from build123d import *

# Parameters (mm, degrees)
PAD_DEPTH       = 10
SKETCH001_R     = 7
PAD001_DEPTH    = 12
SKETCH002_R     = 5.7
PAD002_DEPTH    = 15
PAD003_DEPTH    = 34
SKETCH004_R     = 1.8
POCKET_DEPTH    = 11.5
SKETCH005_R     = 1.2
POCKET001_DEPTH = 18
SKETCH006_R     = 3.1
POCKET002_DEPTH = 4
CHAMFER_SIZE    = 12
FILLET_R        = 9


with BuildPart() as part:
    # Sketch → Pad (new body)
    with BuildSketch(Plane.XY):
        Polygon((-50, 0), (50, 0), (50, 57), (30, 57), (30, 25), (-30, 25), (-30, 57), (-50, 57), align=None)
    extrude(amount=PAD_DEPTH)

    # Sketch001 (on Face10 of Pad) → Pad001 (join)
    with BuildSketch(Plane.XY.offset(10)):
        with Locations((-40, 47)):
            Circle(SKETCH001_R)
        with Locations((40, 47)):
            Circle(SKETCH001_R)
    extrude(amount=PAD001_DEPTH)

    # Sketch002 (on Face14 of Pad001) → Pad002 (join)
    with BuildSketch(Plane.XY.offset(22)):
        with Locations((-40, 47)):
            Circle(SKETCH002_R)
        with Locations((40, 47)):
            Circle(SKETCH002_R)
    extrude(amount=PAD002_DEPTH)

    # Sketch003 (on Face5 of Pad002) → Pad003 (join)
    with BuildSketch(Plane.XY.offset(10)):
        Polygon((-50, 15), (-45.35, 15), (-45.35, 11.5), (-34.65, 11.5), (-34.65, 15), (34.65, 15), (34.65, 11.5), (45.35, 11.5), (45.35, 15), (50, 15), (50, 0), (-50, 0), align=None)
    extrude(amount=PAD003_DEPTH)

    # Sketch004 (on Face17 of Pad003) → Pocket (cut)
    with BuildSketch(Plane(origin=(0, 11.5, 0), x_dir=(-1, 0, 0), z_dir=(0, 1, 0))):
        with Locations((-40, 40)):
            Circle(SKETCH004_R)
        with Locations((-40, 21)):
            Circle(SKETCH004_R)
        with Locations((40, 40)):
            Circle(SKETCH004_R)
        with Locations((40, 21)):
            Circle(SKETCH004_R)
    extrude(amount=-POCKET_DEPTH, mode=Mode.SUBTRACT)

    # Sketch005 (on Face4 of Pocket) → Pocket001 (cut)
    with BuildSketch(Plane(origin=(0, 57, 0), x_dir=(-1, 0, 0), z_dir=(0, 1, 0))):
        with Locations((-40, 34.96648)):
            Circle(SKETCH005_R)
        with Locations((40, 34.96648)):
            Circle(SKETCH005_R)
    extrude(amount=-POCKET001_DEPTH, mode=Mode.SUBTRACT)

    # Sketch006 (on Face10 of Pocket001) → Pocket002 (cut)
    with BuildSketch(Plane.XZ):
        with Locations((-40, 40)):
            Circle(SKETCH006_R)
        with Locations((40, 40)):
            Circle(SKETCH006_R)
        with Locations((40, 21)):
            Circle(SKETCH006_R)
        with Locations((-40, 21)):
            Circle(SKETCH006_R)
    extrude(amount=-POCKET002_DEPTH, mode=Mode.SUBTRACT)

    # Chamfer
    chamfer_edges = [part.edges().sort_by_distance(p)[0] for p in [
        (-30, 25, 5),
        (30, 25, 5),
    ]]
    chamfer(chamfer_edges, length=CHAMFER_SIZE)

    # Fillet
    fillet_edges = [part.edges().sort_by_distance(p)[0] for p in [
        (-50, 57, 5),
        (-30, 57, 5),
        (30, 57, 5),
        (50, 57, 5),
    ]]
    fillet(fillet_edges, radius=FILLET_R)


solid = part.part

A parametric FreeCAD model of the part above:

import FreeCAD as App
import Part
import Sketcher
from FreeCAD import Vector


def edges_at(feature, points):
    """Names of the edges that pass closest to the given points."""
    edges = feature.Shape.Edges
    near = lambda p: min(range(len(edges)), key=lambda i: edges[i].distToShape(Part.Vertex(*p))[0])
    return sorted({f"Edge{near(p) + 1}" for p in points})


def add_polygon(sketch, points):
    """Adds a closed chain of lines whose ends are joined by coincident constraints."""
    first, n = sketch.GeometryCount, len(points)
    for a, b in zip(points, points[1:] + points[:1]):
        sketch.addGeometry(Part.LineSegment(App.Vector(*a, 0), App.Vector(*b, 0)), False)
    for i in range(n):
        sketch.addConstraint(Sketcher.Constraint("Coincident", first + i, 2, first + (i + 1) % n, 1))

doc = App.newDocument("Part")
body = doc.addObject("PartDesign::Body", "Body")

# Sketch on XY plane
sketch1 = body.newObject("Sketcher::SketchObject", "Sketch")
sketch1.AttachmentSupport = (doc.getObject("XY_Plane"), [""])
sketch1.MapMode = "FlatFace"
add_polygon(sketch1, [(-50, 0), (50, 0), (50, 57), (30, 57), (30, 25), (-30, 25), (-30, 57), (-50, 57)])  # lines 0-7
sketch1.addConstraint(Sketcher.Constraint("Horizontal", 0))
sketch1.addConstraint(Sketcher.Constraint("Vertical", 1))
sketch1.addConstraint(Sketcher.Constraint("Horizontal", 2))
sketch1.addConstraint(Sketcher.Constraint("Vertical", 3))
sketch1.addConstraint(Sketcher.Constraint("Horizontal", 4))
sketch1.addConstraint(Sketcher.Constraint("Vertical", 5))
sketch1.addConstraint(Sketcher.Constraint("Horizontal", 6))
sketch1.addConstraint(Sketcher.Constraint("Vertical", 7))
sketch1.addConstraint(Sketcher.Constraint("Symmetric", 0, 2, 7, 2, -1, 1))
sketch1.addConstraint(Sketcher.Constraint("Symmetric", 2, 2, 5, 2, -2))
sketch1.addConstraint(Sketcher.Constraint("DistanceX", 0, 1, 0, 2, 100.0))
sketch1.addConstraint(Sketcher.Constraint("DistanceX", 2, 2, 2, 1, 20.0))
sketch1.addConstraint(Sketcher.Constraint("DistanceY", 1, 1, 1, 2, 57.0))
sketch1.addConstraint(Sketcher.Constraint("DistanceY", 3, 2, 3, 1, 32.0))
pad1 = body.newObject("PartDesign::Pad", "Pad")
pad1.Profile = sketch1
pad1.Length = 10

# Sketch on XY plane
sketch2 = body.newObject("Sketcher::SketchObject", "Sketch001")
sketch2.AttachmentSupport = (doc.getObject("XY_Plane"), [""])
sketch2.MapMode = "FlatFace"
sketch2.AttachmentOffset = App.Placement(Vector(0, 0, 10), App.Rotation())
sketch2.addGeometry(Part.Circle(Vector(-40, 47, 0), Vector(0, 0, 1), 7), False)
sketch2.addGeometry(Part.Circle(Vector(40, 47, 0), Vector(0, 0, 1), 7), False)
sketch2.addConstraint(Sketcher.Constraint("Equal", 0, 1))
sketch2.addConstraint(Sketcher.Constraint("Symmetric", 0, 3, 1, 3, -2))
sketch2.addConstraint(Sketcher.Constraint("Diameter", 0, 14.0))
sketch2.addConstraint(Sketcher.Constraint("DistanceX", 0, 3, -1, 1, 40.0))
sketch2.addConstraint(Sketcher.Constraint("DistanceY", -1, 1, 0, 3, 47.0))
pad2 = body.newObject("PartDesign::Pad", "Pad001")
pad2.Profile = sketch2
pad2.Length = 12

# Sketch on XY plane
sketch3 = body.newObject("Sketcher::SketchObject", "Sketch002")
sketch3.AttachmentSupport = (doc.getObject("XY_Plane"), [""])
sketch3.MapMode = "FlatFace"
sketch3.AttachmentOffset = App.Placement(Vector(0, 0, 22), App.Rotation())
sketch3.addGeometry(Part.Circle(Vector(-40, 47, 0), Vector(0, 0, 1), 5.7), False)
sketch3.addGeometry(Part.Circle(Vector(40, 47, 0), Vector(0, 0, 1), 5.7), False)
sketch3.addConstraint(Sketcher.Constraint("Equal", 0, 1))
sketch3.addConstraint(Sketcher.Constraint("Symmetric", 0, 3, 1, 3, -2))
sketch3.addConstraint(Sketcher.Constraint("Diameter", 0, 11.4))
sketch3.addConstraint(Sketcher.Constraint("DistanceX", 0, 3, -1, 1, 40.0))
sketch3.addConstraint(Sketcher.Constraint("DistanceY", -1, 1, 0, 3, 47.0))
pad3 = body.newObject("PartDesign::Pad", "Pad002")
pad3.Profile = sketch3
pad3.Length = 15

# Sketch on XY plane
sketch4 = body.newObject("Sketcher::SketchObject", "Sketch003")
sketch4.AttachmentSupport = (doc.getObject("XY_Plane"), [""])
sketch4.MapMode = "FlatFace"
sketch4.AttachmentOffset = App.Placement(Vector(0, 0, 10), App.Rotation())
add_polygon(sketch4, [(-45.35, 15), (-50, 15), (-50, 0), (50, 0), (50, 15), (45.35, 15), (45.35, 11.5), (34.65, 11.5), (34.65, 15), (-34.65, 15), (-34.65, 11.5), (-45.35, 11.5)])  # lines 0-11
sketch4.addConstraint(Sketcher.Constraint("Horizontal", 0))
sketch4.addConstraint(Sketcher.Constraint("Vertical", 1))
sketch4.addConstraint(Sketcher.Constraint("Horizontal", 2))
sketch4.addConstraint(Sketcher.Constraint("Vertical", 3))
sketch4.addConstraint(Sketcher.Constraint("Horizontal", 4))
sketch4.addConstraint(Sketcher.Constraint("Vertical", 5))
sketch4.addConstraint(Sketcher.Constraint("Horizontal", 6))
sketch4.addConstraint(Sketcher.Constraint("Vertical", 7))
sketch4.addConstraint(Sketcher.Constraint("Horizontal", 8))
sketch4.addConstraint(Sketcher.Constraint("Vertical", 9))
sketch4.addConstraint(Sketcher.Constraint("Horizontal", 10))
sketch4.addConstraint(Sketcher.Constraint("Vertical", 11))
sketch4.addConstraint(Sketcher.Constraint("Symmetric", 1, 2, 2, 2, -1, 1))
sketch4.addConstraint(Sketcher.Constraint("Symmetric", 6, 2, 9, 2, -2))
sketch4.addConstraint(Sketcher.Constraint("Symmetric", 4, 2, 11, 2, -2))
sketch4.addConstraint(Sketcher.Constraint("Horizontal", 4, 2, 7, 2))
sketch4.addConstraint(Sketcher.Constraint("DistanceX", 2, 1, 2, 2, 100.0))
sketch4.addConstraint(Sketcher.Constraint("DistanceY", 1, 2, 1, 1, 15.0))
sketch4.addConstraint(Sketcher.Constraint("DistanceX", 6, 2, 6, 1, 10.7))
sketch4.addConstraint(Sketcher.Constraint("DistanceX", 8, 2, 8, 1, 69.3))
sketch4.addConstraint(Sketcher.Constraint("DistanceY", 5, 2, 5, 1, 3.5))
pad4 = body.newObject("PartDesign::Pad", "Pad003")
pad4.Profile = sketch4
pad4.Length = 34

# Sketch on XZ plane
sketch5 = body.newObject("Sketcher::SketchObject", "Sketch004")
sketch5.AttachmentSupport = (doc.getObject("XZ_Plane"), [""])
sketch5.MapMode = "FlatFace"
sketch5.AttachmentOffset = App.Placement(Vector(0, 0, -11.5), App.Rotation())
sketch5.addGeometry(Part.Circle(Vector(40, 40, 0), Vector(0, 0, 1), 1.8), False)
sketch5.addGeometry(Part.Circle(Vector(40, 21, 0), Vector(0, 0, 1), 1.8), False)
sketch5.addGeometry(Part.Circle(Vector(-40, 40, 0), Vector(0, 0, 1), 1.8), False)
sketch5.addGeometry(Part.Circle(Vector(-40, 21, 0), Vector(0, 0, 1), 1.8), False)
sketch5.addConstraint(Sketcher.Constraint("Equal", 0, 1))
sketch5.addConstraint(Sketcher.Constraint("Equal", 1, 2))
sketch5.addConstraint(Sketcher.Constraint("Equal", 2, 3))
sketch5.addConstraint(Sketcher.Constraint("Symmetric", 0, 3, 2, 3, -2))
sketch5.addConstraint(Sketcher.Constraint("Symmetric", 1, 3, 3, 3, -2))
sketch5.addConstraint(Sketcher.Constraint("Vertical", 0, 3, 1, 3))
sketch5.addConstraint(Sketcher.Constraint("Diameter", 0, 3.6))
sketch5.addConstraint(Sketcher.Constraint("DistanceX", -1, 1, 0, 3, 40.0))
sketch5.addConstraint(Sketcher.Constraint("DistanceY", -1, 1, 0, 3, 40.0))
sketch5.addConstraint(Sketcher.Constraint("DistanceY", -1, 1, 1, 3, 21.0))
pocket1 = body.newObject("PartDesign::Pocket", "Pocket")
pocket1.Profile = sketch5
pocket1.Length = 11.5
pocket1.Reversed = True

# Sketch on XZ plane
sketch6 = body.newObject("Sketcher::SketchObject", "Sketch005")
sketch6.AttachmentSupport = (doc.getObject("XZ_Plane"), [""])
sketch6.MapMode = "FlatFace"
sketch6.AttachmentOffset = App.Placement(Vector(0, 0, -57), App.Rotation())
sketch6.addGeometry(Part.Circle(Vector(40, 34.96648, 0), Vector(0, 0, 1), 1.2), False)
sketch6.addGeometry(Part.Circle(Vector(-40, 34.96648, 0), Vector(0, 0, 1), 1.2), False)
sketch6.addConstraint(Sketcher.Constraint("Equal", 0, 1))
sketch6.addConstraint(Sketcher.Constraint("Symmetric", 0, 3, 1, 3, -2))
sketch6.addConstraint(Sketcher.Constraint("Diameter", 0, 2.4))
sketch6.addConstraint(Sketcher.Constraint("DistanceX", -1, 1, 0, 3, 40.0))
sketch6.addConstraint(Sketcher.Constraint("DistanceY", -1, 1, 0, 3, 34.96648))
pocket2 = body.newObject("PartDesign::Pocket", "Pocket001")
pocket2.Profile = sketch6
pocket2.Length = 18
pocket2.Reversed = True

# Sketch on XZ plane
sketch7 = body.newObject("Sketcher::SketchObject", "Sketch006")
sketch7.AttachmentSupport = (doc.getObject("XZ_Plane"), [""])
sketch7.MapMode = "FlatFace"
sketch7.addGeometry(Part.Circle(Vector(-40, 40, 0), Vector(0, 0, 1), 3.1), False)
sketch7.addGeometry(Part.Circle(Vector(40, 40, 0), Vector(0, 0, 1), 3.1), False)
sketch7.addGeometry(Part.Circle(Vector(40, 21, 0), Vector(0, 0, 1), 3.1), False)
sketch7.addGeometry(Part.Circle(Vector(-40, 21, 0), Vector(0, 0, 1), 3.1), False)
sketch7.addConstraint(Sketcher.Constraint("Equal", 0, 1))
sketch7.addConstraint(Sketcher.Constraint("Equal", 1, 2))
sketch7.addConstraint(Sketcher.Constraint("Equal", 2, 3))
sketch7.addConstraint(Sketcher.Constraint("Symmetric", 0, 3, 1, 3, -2))
sketch7.addConstraint(Sketcher.Constraint("Symmetric", 2, 3, 3, 3, -2))
sketch7.addConstraint(Sketcher.Constraint("Vertical", 1, 3, 2, 3))
sketch7.addConstraint(Sketcher.Constraint("Diameter", 0, 6.2))
sketch7.addConstraint(Sketcher.Constraint("DistanceX", 0, 3, -1, 1, 40.0))
sketch7.addConstraint(Sketcher.Constraint("DistanceY", -1, 1, 0, 3, 40.0))
sketch7.addConstraint(Sketcher.Constraint("DistanceY", -1, 1, 2, 3, 21.0))
pocket3 = body.newObject("PartDesign::Pocket", "Pocket002")
pocket3.Profile = sketch7
pocket3.Length = 4
doc.recompute()

chamfer = body.newObject("PartDesign::Chamfer", "Chamfer")
chamfer.Base = (pocket3, edges_at(pocket3, [(-30, 25, 5), (30, 25, 5)]))
chamfer.Size = 12
doc.recompute()

fillet = body.newObject("PartDesign::Fillet", "Fillet")
fillet.Base = (chamfer, edges_at(chamfer, [
    (-50, 57, 5),
    (-30, 57, 5),
    (30, 57, 5),
    (50, 57, 5),
]))
fillet.Radius = 9

doc.recompute()
